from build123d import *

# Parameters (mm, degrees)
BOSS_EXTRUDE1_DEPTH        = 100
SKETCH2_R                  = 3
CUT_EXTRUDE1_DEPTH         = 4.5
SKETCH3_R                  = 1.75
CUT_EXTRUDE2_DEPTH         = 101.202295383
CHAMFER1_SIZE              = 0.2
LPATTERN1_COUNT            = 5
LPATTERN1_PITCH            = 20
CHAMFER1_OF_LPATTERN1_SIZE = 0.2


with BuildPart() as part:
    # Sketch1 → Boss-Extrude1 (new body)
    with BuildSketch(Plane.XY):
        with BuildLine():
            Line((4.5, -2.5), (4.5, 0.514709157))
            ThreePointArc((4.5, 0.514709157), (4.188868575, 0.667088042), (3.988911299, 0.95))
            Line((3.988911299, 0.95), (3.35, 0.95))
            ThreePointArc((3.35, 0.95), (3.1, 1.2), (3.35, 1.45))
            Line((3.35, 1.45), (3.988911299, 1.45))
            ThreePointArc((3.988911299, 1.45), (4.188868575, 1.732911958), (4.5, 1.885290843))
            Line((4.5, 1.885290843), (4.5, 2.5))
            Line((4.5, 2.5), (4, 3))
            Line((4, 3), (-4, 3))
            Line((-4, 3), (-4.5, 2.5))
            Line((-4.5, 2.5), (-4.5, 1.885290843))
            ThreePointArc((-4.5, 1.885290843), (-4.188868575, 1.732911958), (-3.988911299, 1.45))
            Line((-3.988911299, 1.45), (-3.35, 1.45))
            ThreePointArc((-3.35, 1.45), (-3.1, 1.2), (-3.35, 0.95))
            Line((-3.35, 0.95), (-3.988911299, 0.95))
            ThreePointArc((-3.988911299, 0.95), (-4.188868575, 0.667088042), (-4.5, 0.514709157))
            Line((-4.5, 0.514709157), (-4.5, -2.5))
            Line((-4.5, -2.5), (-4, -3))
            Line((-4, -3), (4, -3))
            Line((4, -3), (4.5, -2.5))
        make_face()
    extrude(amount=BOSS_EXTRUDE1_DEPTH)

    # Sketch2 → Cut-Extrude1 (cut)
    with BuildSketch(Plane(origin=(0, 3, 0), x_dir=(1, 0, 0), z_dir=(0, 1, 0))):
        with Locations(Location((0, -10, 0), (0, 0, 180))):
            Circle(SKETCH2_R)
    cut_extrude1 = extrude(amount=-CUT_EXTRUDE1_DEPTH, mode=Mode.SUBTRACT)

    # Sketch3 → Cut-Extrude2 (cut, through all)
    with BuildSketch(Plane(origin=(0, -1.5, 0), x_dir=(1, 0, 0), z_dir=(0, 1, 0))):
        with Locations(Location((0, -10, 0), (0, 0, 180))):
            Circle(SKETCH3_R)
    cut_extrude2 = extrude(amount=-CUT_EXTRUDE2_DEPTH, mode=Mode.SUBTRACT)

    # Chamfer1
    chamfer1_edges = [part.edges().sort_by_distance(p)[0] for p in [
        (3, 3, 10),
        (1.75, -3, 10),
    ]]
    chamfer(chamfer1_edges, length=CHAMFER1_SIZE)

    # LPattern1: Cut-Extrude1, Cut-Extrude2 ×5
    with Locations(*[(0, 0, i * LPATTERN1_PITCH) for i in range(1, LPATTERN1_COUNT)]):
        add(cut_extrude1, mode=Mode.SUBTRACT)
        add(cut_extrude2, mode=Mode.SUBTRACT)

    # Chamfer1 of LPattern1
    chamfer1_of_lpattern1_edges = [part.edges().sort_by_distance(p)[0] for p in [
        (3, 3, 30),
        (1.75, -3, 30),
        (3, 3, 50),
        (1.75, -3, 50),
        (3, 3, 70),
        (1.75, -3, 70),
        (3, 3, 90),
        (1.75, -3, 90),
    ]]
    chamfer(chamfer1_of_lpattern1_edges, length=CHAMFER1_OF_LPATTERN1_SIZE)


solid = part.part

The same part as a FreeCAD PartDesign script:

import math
import FreeCAD as App
import Part
import Sketcher
from FreeCAD import Vector


def edges_at(feature, points):
    """Names of the edges that pass closest to the given points."""
    edges = feature.Shape.Edges
    near = lambda p: min(range(len(edges)), key=lambda i: edges[i].distToShape(Part.Vertex(*p))[0])
    return sorted({f"Edge{near(p) + 1}" for p in points})

doc = App.newDocument("Part")
body = doc.addObject("PartDesign::Body", "Body")

# Sketch on XY plane
sketch1 = body.newObject("Sketcher::SketchObject", "Sketch")
sketch1.AttachmentSupport = (doc.getObject("XY_Plane"), [""])
sketch1.MapMode = "FlatFace"
sketch1.addGeometry([
    Part.LineSegment(Vector(4.5, -2.5, 0), Vector(4.5, 0.514709, 0)),  # 0
    Part.ArcOfCircle(Part.Circle(Vector(4.642746, 1.2, 0), Vector(0, 0, 1), 0.7), math.radians(-159.075167), math.radians(-101.766463)),  # 1
    Part.LineSegment(Vector(3.988911, 0.95, 0), Vector(3.35, 0.95, 0)),  # 2
    Part.ArcOfCircle(Part.Circle(Vector(3.35, 1.2, 0), Vector(0, 0, 1), 0.25), math.radians(90), math.radians(270)),  # 3
    Part.LineSegment(Vector(3.35, 1.45, 0), Vector(3.988911, 1.45, 0)),  # 4
    Part.ArcOfCircle(Part.Circle(Vector(4.642746, 1.2, 0), Vector(0, 0, 1), 0.7), math.radians(101.766463), math.radians(159.075167)),  # 5
    Part.LineSegment(Vector(4.5, 1.885291, 0), Vector(4.5, 2.5, 0)),  # 6
    Part.LineSegment(Vector(4.5, 2.5, 0), Vector(4, 3, 0)),  # 7
    Part.LineSegment(Vector(4, 3, 0), Vector(-4, 3, 0)),  # 8
    Part.LineSegment(Vector(-4, 3, 0), Vector(-4.5, 2.5, 0)),  # 9
    Part.LineSegment(Vector(-4.5, 2.5, 0), Vector(-4.5, 1.885291, 0)),  # 10
    Part.ArcOfCircle(Part.Circle(Vector(-4.642746, 1.2, 0), Vector(0, 0, 1), 0.7), math.radians(20.924833), math.radians(78.233537)),  # 11
    Part.LineSegment(Vector(-3.988911, 1.45, 0), Vector(-3.35, 1.45, 0)),  # 12
    Part.ArcOfCircle(Part.Circle(Vector(-3.35, 1.2, 0), Vector(0, 0, 1), 0.25), math.radians(-90), math.radians(90)),  # 13
    Part.LineSegment(Vector(-3.35, 0.95, 0), Vector(-3.988911, 0.95, 0)),  # 14
    Part.ArcOfCircle(Part.Circle(Vector(-4.642746, 1.2, 0), Vector(0, 0, 1), 0.7), math.radians(-78.233537), math.radians(-20.924833)),  # 15
    Part.LineSegment(Vector(-4.5, 0.514709, 0), Vector(-4.5, -2.5, 0)),  # 16
    Part.LineSegment(Vector(-4.5, -2.5, 0), Vector(-4, -3, 0)),  # 17
    Part.LineSegment(Vector(-4, -3, 0), Vector(4, -3, 0)),  # 18
    Part.LineSegment(Vector(4, -3, 0), Vector(4.5, -2.5, 0)),  # 19
], False)
sketch1.addConstraint([
    Sketcher.Constraint("Coincident", 0, 2, 1, 2),
    Sketcher.Constraint("Coincident", 1, 1, 2, 1),
    Sketcher.Constraint("Tangent", 2, 2, 3, 2),
    Sketcher.Constraint("Tangent", 3, 1, 4, 1),
    Sketcher.Constraint("Coincident", 4, 2, 5, 2),
    Sketcher.Constraint("Coincident", 5, 1, 6, 1),
    Sketcher.Constraint("Coincident", 6, 2, 7, 1),
    Sketcher.Constraint("Coincident", 7, 2, 8, 1),
    Sketcher.Constraint("Coincident", 8, 2, 9, 1),
    Sketcher.Constraint("Coincident", 9, 2, 10, 1),
    Sketcher.Constraint("Coincident", 10, 2, 11, 2),
    Sketcher.Constraint("Coincident", 11, 1, 12, 1),
    Sketcher.Constraint("Tangent", 12, 2, 13, 2),
    Sketcher.Constraint("Tangent", 13, 1, 14, 1),
    Sketcher.Constraint("Coincident", 14, 2, 15, 2),
    Sketcher.Constraint("Coincident", 15, 1, 16, 1),
    Sketcher.Constraint("Coincident", 16, 2, 17, 1),
    Sketcher.Constraint("Coincident", 17, 2, 18, 1),
    Sketcher.Constraint("Coincident", 18, 2, 19, 1),
    Sketcher.Constraint("Coincident", 19, 2, 0, 1),
    Sketcher.Constraint("Vertical", 0),
    Sketcher.Constraint("Horizontal", 2),
    Sketcher.Constraint("Horizontal", 4),
    Sketcher.Constraint("Vertical", 6),
    Sketcher.Constraint("Horizontal", 8),
    Sketcher.Constraint("Vertical", 10),
    Sketcher.Constraint("Horizontal", 12),
    Sketcher.Constraint("Horizontal", 14),
    Sketcher.Constraint("Vertical", 16),
    Sketcher.Constraint("Horizontal", 18),
    Sketcher.Constraint("Coincident", 5, 3, 1, 3),
    Sketcher.Constraint("Coincident", 15, 3, 11, 3),
    Sketcher.Constraint("Equal", 1, 5),
    Sketcher.Constraint("Equal", 5, 11),
    Sketcher.Constraint("Equal", 3, 13),
    Sketcher.Constraint("Equal", 11, 15),
    Sketcher.Constraint("Symmetric", 6, 2, 16, 2, -1, 1),
    Sketcher.Constraint("Symmetric", 7, 2, 17, 2, -1, 1),
    Sketcher.Constraint("Symmetric", 9, 2, 19, 2, -1, 1),
    Sketcher.Constraint("Symmetric", 1, 3, 11, 3, -2),
    Sketcher.Constraint("Symmetric", 3, 3, 13, 3, -2),
    Sketcher.Constraint("Symmetric", 6, 2, 9, 2, -2),
    Sketcher.Constraint("Perpendicular", 7, 9),
    Sketcher.Constraint("Perpendicular", 17, 19),
    Sketcher.Constraint("Horizontal", 1, 3, 3, 3),
    Sketcher.Constraint("Vertical", 8, 2, 17, 2),
    Sketcher.Constraint("Radius", 1, 0.7),
    Sketcher.Constraint("DistanceX", 8, 2, 8, 1, 8.0),
    Sketcher.Constraint("Radius", 3, 0.25),
    Sketcher.Constraint("DistanceY", -1, 1, 7, 2, 3.0),
    Sketcher.Constraint("DistanceY", -1, 1, 1, 3, 1.2),
    Sketcher.Constraint("DistanceX", -1, 1, 0, 2, 4.5),
    Sketcher.Constraint("DistanceX", 13, 3, 3, 3, 6.7),
    Sketcher.Constraint("DistanceX", 2, 2, 2, 1, 0.638911),
])
pad1 = body.newObject("PartDesign::Pad", "Pad")
pad1.Profile = sketch1
pad1.Length = 100

# Sketch on XZ plane
sketch2 = body.newObject("Sketcher::SketchObject", "Sketch001")
sketch2.AttachmentSupport = (doc.getObject("XZ_Plane"), [""])
sketch2.MapMode = "FlatFace"
sketch2.AttachmentOffset = App.Placement(Vector(0, 0, -3), App.Rotation())
sketch2.addGeometry(Part.Circle(Vector(0, 10, 0), Vector(0, 0, 1), 3), False)
sketch2.addConstraint([
    Sketcher.Constraint("PointOnObject", 0, 3, -2),
    Sketcher.Constraint("Diameter", 0, 6.0),
    Sketcher.Constraint("DistanceY", -1, 1, 0, 3, 10.0),
])
pocket1 = body.newObject("PartDesign::Pocket", "Pocket")
pocket1.Profile = sketch2
pocket1.Length = 4.5
pocket1.Reversed = True

# Sketch on XZ plane
sketch3 = body.newObject("Sketcher::SketchObject", "Sketch002")
sketch3.AttachmentSupport = (doc.getObject("XZ_Plane"), [""])
sketch3.MapMode = "FlatFace"
sketch3.AttachmentOffset = App.Placement(Vector(0, 0, 1.5), App.Rotation())
sketch3.addGeometry(Part.Circle(Vector(0, 10, 0), Vector(0, 0, 1), 1.75), False)
sketch3.addConstraint([
    Sketcher.Constraint("PointOnObject", 0, 3, -2),
    Sketcher.Constraint("Diameter", 0, 3.5),
    Sketcher.Constraint("DistanceY", -1, 1, 0, 3, 10.0),
])
pocket2 = body.newObject("PartDesign::Pocket", "Pocket001")
pocket2.Profile = sketch3
pocket2.Type = "ThroughAll"
pocket2.Reversed = True
doc.recompute()

chamfer = body.newObject("PartDesign::Chamfer", "Chamfer")
chamfer.Base = (pocket2, edges_at(pocket2, [(3, 3, 10), (1.75, -3, 10)]))
chamfer.Size = 0.2
doc.recompute()

linearpattern = body.newObject("PartDesign::LinearPattern", "LinearPattern")
linearpattern.Originals = [pocket1, pocket2]
linearpattern.Direction = (doc.getObject("Z_Axis"), [""])
linearpattern.Mode = "offset"
linearpattern.Offset = 20
linearpattern.Occurrences = 5
body.Tip = linearpattern
doc.recompute()

chamfer2 = body.newObject("PartDesign::Chamfer", "Chamfer001")
chamfer2.Base = (linearpattern, edges_at(linearpattern, [
    (3, 3, 30),
    (1.75, -3, 30),
    (3, 3, 50),
    (1.75, -3, 50),
    (3, 3, 70),
    (1.75, -3, 70),
    (3, 3, 90),
    (1.75, -3, 90),
]))
chamfer2.Size = 0.2

doc.recompute()
